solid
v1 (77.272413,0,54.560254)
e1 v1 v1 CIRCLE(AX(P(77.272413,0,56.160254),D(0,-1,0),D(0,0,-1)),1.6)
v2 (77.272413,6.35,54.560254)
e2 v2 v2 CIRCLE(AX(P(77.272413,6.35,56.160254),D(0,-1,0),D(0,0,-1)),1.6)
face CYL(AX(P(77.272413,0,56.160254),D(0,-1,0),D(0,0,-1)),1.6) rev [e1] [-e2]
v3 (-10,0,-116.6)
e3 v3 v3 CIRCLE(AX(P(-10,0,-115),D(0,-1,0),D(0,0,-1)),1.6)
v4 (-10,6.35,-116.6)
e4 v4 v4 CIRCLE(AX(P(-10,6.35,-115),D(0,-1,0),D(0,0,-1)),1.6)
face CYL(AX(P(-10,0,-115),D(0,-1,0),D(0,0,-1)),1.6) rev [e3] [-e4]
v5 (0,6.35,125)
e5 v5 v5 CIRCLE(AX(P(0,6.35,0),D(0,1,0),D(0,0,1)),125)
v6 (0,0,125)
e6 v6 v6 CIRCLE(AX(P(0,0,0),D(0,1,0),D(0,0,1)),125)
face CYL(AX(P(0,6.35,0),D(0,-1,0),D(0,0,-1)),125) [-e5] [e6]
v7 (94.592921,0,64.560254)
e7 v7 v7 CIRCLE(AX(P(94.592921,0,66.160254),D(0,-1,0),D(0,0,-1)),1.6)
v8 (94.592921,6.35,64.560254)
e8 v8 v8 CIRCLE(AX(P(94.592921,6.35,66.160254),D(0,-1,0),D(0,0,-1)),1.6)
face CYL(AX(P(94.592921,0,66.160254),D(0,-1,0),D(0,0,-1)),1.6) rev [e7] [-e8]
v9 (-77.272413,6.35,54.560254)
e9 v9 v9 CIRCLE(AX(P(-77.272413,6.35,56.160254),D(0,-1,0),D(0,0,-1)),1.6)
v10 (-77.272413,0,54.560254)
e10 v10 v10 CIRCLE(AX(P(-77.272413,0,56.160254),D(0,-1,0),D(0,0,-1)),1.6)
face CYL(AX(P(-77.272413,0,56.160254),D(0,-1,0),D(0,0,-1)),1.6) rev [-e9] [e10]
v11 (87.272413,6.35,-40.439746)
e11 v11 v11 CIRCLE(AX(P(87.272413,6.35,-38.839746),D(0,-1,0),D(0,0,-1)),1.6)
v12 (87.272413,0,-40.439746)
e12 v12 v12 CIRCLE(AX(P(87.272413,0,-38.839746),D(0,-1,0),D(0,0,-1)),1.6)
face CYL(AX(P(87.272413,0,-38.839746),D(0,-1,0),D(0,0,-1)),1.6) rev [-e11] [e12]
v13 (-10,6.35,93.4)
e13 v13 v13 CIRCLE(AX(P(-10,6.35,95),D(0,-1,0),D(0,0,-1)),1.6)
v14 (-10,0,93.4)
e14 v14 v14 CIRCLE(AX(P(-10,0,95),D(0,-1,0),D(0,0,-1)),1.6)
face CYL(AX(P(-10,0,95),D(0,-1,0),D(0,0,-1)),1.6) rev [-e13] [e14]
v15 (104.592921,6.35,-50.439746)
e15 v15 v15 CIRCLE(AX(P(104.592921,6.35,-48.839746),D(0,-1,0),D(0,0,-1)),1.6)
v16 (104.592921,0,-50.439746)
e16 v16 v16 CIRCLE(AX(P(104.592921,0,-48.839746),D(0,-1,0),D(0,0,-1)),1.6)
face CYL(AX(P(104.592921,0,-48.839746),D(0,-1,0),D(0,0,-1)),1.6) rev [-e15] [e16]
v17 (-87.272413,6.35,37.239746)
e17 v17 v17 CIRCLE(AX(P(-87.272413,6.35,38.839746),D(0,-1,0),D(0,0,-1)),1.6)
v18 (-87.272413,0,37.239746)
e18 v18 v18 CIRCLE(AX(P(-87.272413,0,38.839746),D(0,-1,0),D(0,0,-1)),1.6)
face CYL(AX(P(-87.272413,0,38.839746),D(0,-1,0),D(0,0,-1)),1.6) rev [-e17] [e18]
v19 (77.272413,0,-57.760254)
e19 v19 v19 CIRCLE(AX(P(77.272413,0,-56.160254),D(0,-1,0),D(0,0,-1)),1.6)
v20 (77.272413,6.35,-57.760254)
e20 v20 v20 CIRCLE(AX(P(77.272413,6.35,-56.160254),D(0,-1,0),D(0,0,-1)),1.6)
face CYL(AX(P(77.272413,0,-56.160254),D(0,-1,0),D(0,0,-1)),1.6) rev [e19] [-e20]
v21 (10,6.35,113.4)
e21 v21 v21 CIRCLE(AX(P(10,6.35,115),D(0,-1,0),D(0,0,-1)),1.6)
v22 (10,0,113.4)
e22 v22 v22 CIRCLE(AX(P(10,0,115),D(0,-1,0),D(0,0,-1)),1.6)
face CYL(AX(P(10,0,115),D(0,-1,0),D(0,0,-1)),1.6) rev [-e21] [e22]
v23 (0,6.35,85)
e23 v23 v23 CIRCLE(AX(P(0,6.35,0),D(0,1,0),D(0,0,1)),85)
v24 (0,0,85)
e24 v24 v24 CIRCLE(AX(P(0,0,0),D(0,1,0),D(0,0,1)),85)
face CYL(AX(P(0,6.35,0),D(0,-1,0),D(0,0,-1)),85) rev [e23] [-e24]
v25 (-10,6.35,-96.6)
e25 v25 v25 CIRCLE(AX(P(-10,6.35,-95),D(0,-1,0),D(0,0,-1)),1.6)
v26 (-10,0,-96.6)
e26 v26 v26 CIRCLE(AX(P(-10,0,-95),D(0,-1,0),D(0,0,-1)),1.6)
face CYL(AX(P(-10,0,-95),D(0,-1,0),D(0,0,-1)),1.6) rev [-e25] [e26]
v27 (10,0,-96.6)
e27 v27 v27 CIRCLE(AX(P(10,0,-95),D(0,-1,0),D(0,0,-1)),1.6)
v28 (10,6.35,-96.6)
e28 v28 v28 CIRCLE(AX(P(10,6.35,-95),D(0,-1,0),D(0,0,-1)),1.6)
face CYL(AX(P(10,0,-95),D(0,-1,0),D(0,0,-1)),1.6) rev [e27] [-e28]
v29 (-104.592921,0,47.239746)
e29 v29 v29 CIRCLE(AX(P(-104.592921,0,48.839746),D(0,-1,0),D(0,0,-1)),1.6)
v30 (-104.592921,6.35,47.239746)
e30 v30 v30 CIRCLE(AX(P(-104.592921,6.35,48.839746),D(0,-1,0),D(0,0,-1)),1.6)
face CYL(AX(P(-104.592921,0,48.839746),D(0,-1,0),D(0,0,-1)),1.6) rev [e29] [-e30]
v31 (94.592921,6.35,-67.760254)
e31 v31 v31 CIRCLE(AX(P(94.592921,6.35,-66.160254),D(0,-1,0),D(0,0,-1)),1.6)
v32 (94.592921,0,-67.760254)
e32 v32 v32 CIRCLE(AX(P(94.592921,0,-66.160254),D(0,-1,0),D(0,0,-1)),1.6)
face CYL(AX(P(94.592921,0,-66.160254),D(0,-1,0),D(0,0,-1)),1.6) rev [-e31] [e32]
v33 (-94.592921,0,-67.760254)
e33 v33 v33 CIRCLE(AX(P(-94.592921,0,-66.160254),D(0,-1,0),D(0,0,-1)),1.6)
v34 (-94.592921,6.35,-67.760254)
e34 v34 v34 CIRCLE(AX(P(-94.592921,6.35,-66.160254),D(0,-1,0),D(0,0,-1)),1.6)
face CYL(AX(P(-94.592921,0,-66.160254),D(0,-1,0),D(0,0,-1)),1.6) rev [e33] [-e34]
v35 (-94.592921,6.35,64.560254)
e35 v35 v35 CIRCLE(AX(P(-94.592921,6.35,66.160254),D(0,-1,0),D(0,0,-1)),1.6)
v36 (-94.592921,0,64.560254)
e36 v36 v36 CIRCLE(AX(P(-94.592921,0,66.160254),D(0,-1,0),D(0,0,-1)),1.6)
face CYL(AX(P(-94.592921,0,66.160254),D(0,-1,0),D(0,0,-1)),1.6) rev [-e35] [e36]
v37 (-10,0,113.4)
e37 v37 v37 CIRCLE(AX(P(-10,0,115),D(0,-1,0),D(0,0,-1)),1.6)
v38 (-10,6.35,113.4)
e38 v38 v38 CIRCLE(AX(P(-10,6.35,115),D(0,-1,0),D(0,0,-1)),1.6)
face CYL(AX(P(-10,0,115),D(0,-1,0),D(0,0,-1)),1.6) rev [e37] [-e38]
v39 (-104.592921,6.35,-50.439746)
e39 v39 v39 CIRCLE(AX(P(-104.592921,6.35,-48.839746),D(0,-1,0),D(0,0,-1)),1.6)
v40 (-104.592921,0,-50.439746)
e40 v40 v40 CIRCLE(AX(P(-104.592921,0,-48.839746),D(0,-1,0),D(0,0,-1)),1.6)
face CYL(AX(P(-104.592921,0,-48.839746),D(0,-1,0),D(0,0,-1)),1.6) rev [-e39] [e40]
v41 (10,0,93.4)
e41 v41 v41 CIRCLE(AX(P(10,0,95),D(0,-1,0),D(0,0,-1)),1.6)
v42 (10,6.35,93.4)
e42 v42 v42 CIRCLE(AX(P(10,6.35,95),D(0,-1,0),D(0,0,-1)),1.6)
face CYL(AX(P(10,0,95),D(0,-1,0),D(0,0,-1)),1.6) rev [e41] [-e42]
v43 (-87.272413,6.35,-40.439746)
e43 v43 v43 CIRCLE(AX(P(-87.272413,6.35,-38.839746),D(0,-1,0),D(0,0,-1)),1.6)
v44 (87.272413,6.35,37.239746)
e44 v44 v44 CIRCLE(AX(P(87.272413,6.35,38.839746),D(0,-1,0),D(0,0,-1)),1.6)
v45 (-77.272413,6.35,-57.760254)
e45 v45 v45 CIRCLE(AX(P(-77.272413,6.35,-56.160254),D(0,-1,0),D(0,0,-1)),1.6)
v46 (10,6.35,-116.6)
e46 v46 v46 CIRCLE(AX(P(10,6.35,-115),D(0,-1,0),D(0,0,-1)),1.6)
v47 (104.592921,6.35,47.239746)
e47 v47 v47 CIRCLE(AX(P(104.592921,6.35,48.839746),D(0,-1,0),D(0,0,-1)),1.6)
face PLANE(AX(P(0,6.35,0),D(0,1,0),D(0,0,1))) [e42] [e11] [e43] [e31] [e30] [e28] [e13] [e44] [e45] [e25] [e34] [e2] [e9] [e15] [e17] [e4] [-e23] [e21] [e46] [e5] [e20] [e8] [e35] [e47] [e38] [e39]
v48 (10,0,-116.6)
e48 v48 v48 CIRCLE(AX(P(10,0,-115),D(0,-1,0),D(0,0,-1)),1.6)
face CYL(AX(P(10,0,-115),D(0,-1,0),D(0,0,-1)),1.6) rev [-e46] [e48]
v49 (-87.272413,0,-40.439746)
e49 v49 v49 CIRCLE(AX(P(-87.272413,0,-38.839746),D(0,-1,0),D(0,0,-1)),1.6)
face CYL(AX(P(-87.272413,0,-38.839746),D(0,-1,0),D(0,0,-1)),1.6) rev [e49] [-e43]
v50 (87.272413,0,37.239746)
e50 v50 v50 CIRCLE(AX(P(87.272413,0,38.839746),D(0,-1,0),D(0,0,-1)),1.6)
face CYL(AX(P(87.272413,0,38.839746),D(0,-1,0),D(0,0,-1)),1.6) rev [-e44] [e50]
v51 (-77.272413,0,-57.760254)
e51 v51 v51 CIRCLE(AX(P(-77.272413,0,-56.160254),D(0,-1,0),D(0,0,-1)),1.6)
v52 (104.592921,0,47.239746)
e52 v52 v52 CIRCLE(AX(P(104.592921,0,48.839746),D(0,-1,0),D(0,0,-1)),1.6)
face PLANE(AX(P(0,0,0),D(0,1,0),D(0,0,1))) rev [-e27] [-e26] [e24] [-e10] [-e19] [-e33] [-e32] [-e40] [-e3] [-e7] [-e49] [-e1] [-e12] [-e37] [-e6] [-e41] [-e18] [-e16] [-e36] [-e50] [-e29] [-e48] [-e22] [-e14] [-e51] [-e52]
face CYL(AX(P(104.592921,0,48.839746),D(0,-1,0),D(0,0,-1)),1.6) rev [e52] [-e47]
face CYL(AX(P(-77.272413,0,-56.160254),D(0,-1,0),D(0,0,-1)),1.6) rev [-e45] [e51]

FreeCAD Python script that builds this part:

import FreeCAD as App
import Part
import Sketcher
Q = App.Units.Quantity

doc = App.newDocument("Part")
body = doc.addObject("PartDesign::Body", "Body")

# Sketch on XZ plane
sketch1 = body.newObject("Sketcher::SketchObject", "Sketch")
sketch1.AttachmentSupport = (doc.getObject("XZ_Plane"), [""])
sketch1.MapMode = "FlatFace"
sketch1.addGeometry(Part.Circle(App.Vector(0, 0, 0), App.Vector(0, 0, 1), 125), False)
sketch1.addConstraint([
    Sketcher.Constraint("Coincident", 0, 3, -1, 1),
    Sketcher.Constraint("Diameter", 0, Q("250 mm")),
])
pad1 = body.newObject("PartDesign::Pad", "Pad")
pad1.Profile = sketch1
pad1.Length = 6.35
pad1.Reversed = True

# Sketch on XZ plane
sketch2 = body.newObject("Sketcher::SketchObject", "Sketch001")
sketch2.AttachmentSupport = (doc.getObject("XZ_Plane"), [""])
sketch2.MapMode = "FlatFace"
sketch2.addGeometry(Part.Circle(App.Vector(0, 0, 0), App.Vector(0, 0, 1), 85), False)
sketch2.addConstraint([
    Sketcher.Constraint("Coincident", 0, 3, -1, 1),
    Sketcher.Constraint("Diameter", 0, Q("170 mm")),
])
pocket1 = body.newObject("PartDesign::Pocket", "Pocket")
pocket1.Profile = sketch2
pocket1.Type = "ThroughAll"

# Sketch on XZ plane
sketch3 = body.newObject("Sketcher::SketchObject", "Sketch002")
sketch3.AttachmentSupport = (doc.getObject("XZ_Plane"), [""])
sketch3.MapMode = "FlatFace"
sketch3.addGeometry([
    Part.Circle(App.Vector(-10, 95, 0), App.Vector(0, 0, 1), 1.6),  # 0
    Part.Circle(App.Vector(10, 95, 0), App.Vector(0, 0, 1), 1.6),  # 1
    Part.Circle(App.Vector(-10, 115, 0), App.Vector(0, 0, 1), 1.6),  # 2
    Part.Circle(App.Vector(10, 115, 0), App.Vector(0, 0, 1), 1.6),  # 3
    Part.Circle(App.Vector(77.272413, 56.160254, 0), App.Vector(0, 0, 1), 1.6),  # 4
    Part.Circle(App.Vector(87.272413, 38.839746, 0), App.Vector(0, 0, 1), 1.6),  # 5
    Part.Circle(App.Vector(94.592921, 66.160254, 0), App.Vector(0, 0, 1), 1.6),  # 6
    Part.Circle(App.Vector(104.592921, 48.839746, 0), App.Vector(0, 0, 1), 1.6),  # 7
    Part.Circle(App.Vector(87.272413, -38.839746, 0), App.Vector(0, 0, 1), 1.6),  # 8
    Part.Circle(App.Vector(77.272413, -56.160254, 0), App.Vector(0, 0, 1), 1.6),  # 9
    Part.Circle(App.Vector(104.592921, -48.839746, 0), App.Vector(0, 0, 1), 1.6),  # 10
    Part.Circle(App.Vector(94.592921, -66.160254, 0), App.Vector(0, 0, 1), 1.6),  # 11
    Part.Circle(App.Vector(0, 0, 0), App.Vector(0, 0, 1), 1.6),  # 12
    Part.Circle(App.Vector(10, -95, 0), App.Vector(0, 0, 1), 1.6),  # 13
    Part.Circle(App.Vector(-10, -95, 0), App.Vector(0, 0, 1), 1.6),  # 14
    Part.Circle(App.Vector(10, -115, 0), App.Vector(0, 0, 1), 1.6),  # 15
    Part.Circle(App.Vector(-10, -115, 0), App.Vector(0, 0, 1), 1.6),  # 16
    Part.Circle(App.Vector(-77.272413, -56.160254, 0), App.Vector(0, 0, 1), 1.6),  # 17
    Part.Circle(App.Vector(-87.272413, -38.839746, 0), App.Vector(0, 0, 1), 1.6),  # 18
    Part.Circle(App.Vector(-94.592921, -66.160254, 0), App.Vector(0, 0, 1), 1.6),  # 19
    Part.Circle(App.Vector(-104.592921, -48.839746, 0), App.Vector(0, 0, 1), 1.6),  # 20
    Part.Circle(App.Vector(-87.272413, 38.839746, 0), App.Vector(0, 0, 1), 1.6),  # 21
    Part.Circle(App.Vector(-77.272413, 56.160254, 0), App.Vector(0, 0, 1), 1.6),  # 22
    Part.Circle(App.Vector(-104.592921, 48.839746, 0), App.Vector(0, 0, 1), 1.6),  # 23
    Part.Circle(App.Vector(-94.592921, 66.160254, 0), App.Vector(0, 0, 1), 1.6),  # 24
], False)
sketch3.addConstraint([
    Sketcher.Constraint("Coincident", 12, 3, -1, 1),
    Sketcher.Constraint("Equal", 0, 1),
    Sketcher.Constraint("Equal", 1, 2),
    Sketcher.Constraint("Equal", 2, 3),
    Sketcher.Constraint("Equal", 3, 4),
    Sketcher.Constraint("Equal", 4, 5),
    Sketcher.Constraint("Equal", 5, 6),
    Sketcher.Constraint("Equal", 6, 7),
    Sketcher.Constraint("Equal", 7, 8),
    Sketcher.Constraint("Equal", 8, 9),
    Sketcher.Constraint("Equal", 9, 10),
    Sketcher.Constraint("Equal", 10, 11),
    Sketcher.Constraint("Equal", 11, 12),
    Sketcher.Constraint("Equal", 12, 13),
    Sketcher.Constraint("Equal", 13, 14),
    Sketcher.Constraint("Equal", 14, 15),
    Sketcher.Constraint("Equal", 15, 16),
    Sketcher.Constraint("Equal", 16, 17),
    Sketcher.Constraint("Equal", 17, 18),
    Sketcher.Constraint("Equal", 18, 19),
    Sketcher.Constraint("Equal", 19, 20),
    Sketcher.Constraint("Equal", 20, 21),
    Sketcher.Constraint("Equal", 21, 22),
    Sketcher.Constraint("Equal", 22, 23),
    Sketcher.Constraint("Equal", 23, 24),
    Sketcher.Constraint("Symmetric", 0, 3, 13, 3, -1, 1),
    Sketcher.Constraint("Symmetric", 1, 3, 14, 3, -1, 1),
    Sketcher.Constraint("Symmetric", 2, 3, 15, 3, -1, 1),
    Sketcher.Constraint("Symmetric", 3, 3, 16, 3, -1, 1),
    Sketcher.Constraint("Symmetric", 4, 3, 17, 3, -1, 1),
    Sketcher.Constraint("Symmetric", 5, 3, 18, 3, -1, 1),
    Sketcher.Constraint("Symmetric", 6, 3, 19, 3, -1, 1),
    Sketcher.Constraint("Symmetric", 7, 3, 20, 3, -1, 1),
    Sketcher.Constraint("Symmetric", 8, 3, 21, 3, -1, 1),
    Sketcher.Constraint("Symmetric", 9, 3, 22, 3, -1, 1),
    Sketcher.Constraint("Symmetric", 10, 3, 23, 3, -1, 1),
    Sketcher.Constraint("Symmetric", 11, 3, 24, 3, -1, 1),
    Sketcher.Constraint("Symmetric", 0, 3, 1, 3, -2),
    Sketcher.Constraint("Symmetric", 2, 3, 3, 3, -2),
    Sketcher.Constraint("Symmetric", 9, 3, 17, 3, -2),
    Sketcher.Constraint("Symmetric", 8, 3, 18, 3, -2),
    Sketcher.Constraint("Symmetric", 11, 3, 19, 3, -2),
    Sketcher.Constraint("Symmetric", 10, 3, 20, 3, -2),
    Sketcher.Constraint("Vertical", 0, 3, 2, 3),
    Sketcher.Constraint("Diameter", 0, Q("3.2 mm")),
    Sketcher.Constraint("DistanceX", 0, 3, -1, 1, Q("10 mm")),
    Sketcher.Constraint("DistanceY", -1, 1, 0, 3, Q("95 mm")),
    Sketcher.Constraint("DistanceY", -1, 1, 2, 3, Q("115 mm")),
    Sketcher.Constraint("DistanceX", 4, 3, 5, 3, Q("10 mm")),
    Sketcher.Constraint("DistanceY", 4, 3, 6, 3, Q("10 mm")),
    Sketcher.Constraint("DistanceY", 5, 3, 7, 3, Q("10 mm")),
    Sketcher.Constraint("DistanceX", 6, 3, 7, 3, Q("10 mm")),
    Sketcher.Constraint("DistanceY", 8, 3, 4, 3, Q("95 mm")),
    Sketcher.Constraint("DistanceX", -1, 1, 6, 3, Q("94.592921 mm")),
    Sketcher.Constraint("DistanceY", 5, 3, 4, 3, Q("17.320508 mm")),
    Sketcher.Constraint("DistanceX", 4, 3, 6, 3, Q("17.320508 mm")),
])
doc.recompute()
hole = body.newObject("PartDesign::Hole", "Hole")
hole.Profile = sketch3
hole.ThreadType = "None"
hole.Diameter = 3.2
hole.DepthType = "ThroughAll"

doc.recompute()
